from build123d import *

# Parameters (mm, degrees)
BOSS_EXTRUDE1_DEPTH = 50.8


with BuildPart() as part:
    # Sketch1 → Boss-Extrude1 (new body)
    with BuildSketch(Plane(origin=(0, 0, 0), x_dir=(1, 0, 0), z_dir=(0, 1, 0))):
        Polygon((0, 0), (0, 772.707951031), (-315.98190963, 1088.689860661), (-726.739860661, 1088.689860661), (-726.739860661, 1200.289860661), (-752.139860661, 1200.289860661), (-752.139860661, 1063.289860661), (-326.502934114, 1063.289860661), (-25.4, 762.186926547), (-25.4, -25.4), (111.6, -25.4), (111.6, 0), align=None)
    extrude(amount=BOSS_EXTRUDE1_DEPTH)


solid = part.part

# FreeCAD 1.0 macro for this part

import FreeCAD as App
import Part
import Sketcher
from FreeCAD import Vector
Q = App.Units.Quantity

doc = App.newDocument("Part")
body = doc.addObject("PartDesign::Body", "Body")

# Sketch on XZ plane
sketch1 = body.newObject("Sketcher::SketchObject", "Sketch")
sketch1.AttachmentSupport = (doc.getObject("XZ_Plane"), [""])
sketch1.MapMode = "FlatFace"
sketch1.addGeometry(Part.LineSegment(Vector(0, 0, 0), Vector(0, -773, 0)), False)
sketch1.addGeometry(Part.LineSegment(Vector(0, -773, 0), Vector(-316, -1089, 0)), False)
sketch1.addGeometry(Part.LineSegment(Vector(-316, -1089, 0), Vector(-727, -1089, 0)), False)
sketch1.addGeometry(Part.LineSegment(Vector(-727, -1089, 0), Vector(-727, -1200, 0)), False)
sketch1.addGeometry(Part.LineSegment(Vector(-727, -1200, 0), Vector(-752, -1200, 0)), False)
sketch1.addGeometry(Part.LineSegment(Vector(-752, -1200, 0), Vector(-752, -1063, 0)), False)
sketch1.addGeometry(Part.LineSegment(Vector(-752, -1063, 0), Vector(-327, -1063, 0)), False)
sketch1.addGeometry(Part.LineSegment(Vector(-327, -1063, 0), Vector(-25, -762, 0)), False)
sketch1.addGeometry(Part.LineSegment(Vector(-25, -762, 0), Vector(-25, 25, 0)), False)
sketch1.addGeometry(Part.LineSegment(Vector(-25, 25, 0), Vector(112, 25, 0)), False)
sketch1.addGeometry(Part.LineSegment(Vector(112, 25, 0), Vector(112, 0, 0)), False)
sketch1.addGeometry(Part.LineSegment(Vector(112, 0, 0), Vector(0, 0, 0)), False)
sketch1.addConstraint(Sketcher.Constraint("Coincident", 0, 2, 1, 1))
sketch1.addConstraint(Sketcher.Constraint("Coincident", 1, 2, 2, 1))
sketch1.addConstraint(Sketcher.Constraint("Coincident", 2, 2, 3, 1))
sketch1.addConstraint(Sketcher.Constraint("Coincident", 3, 2, 4, 1))
sketch1.addConstraint(Sketcher.Constraint("Coincident", 4, 2, 5, 1))
sketch1.addConstraint(Sketcher.Constraint("Coincident", 5, 2, 6, 1))
sketch1.addConstraint(Sketcher.Constraint("Coincident", 6, 2, 7, 1))
sketch1.addConstraint(Sketcher.Constraint("Coincident", 7, 2, 8, 1))
sketch1.addConstraint(Sketcher.Constraint("Coincident", 8, 2, 9, 1))
sketch1.addConstraint(Sketcher.Constraint("Coincident", 9, 2, 10, 1))
sketch1.addConstraint(Sketcher.Constraint("Coincident", 10, 2, 11, 1))
sketch1.addConstraint(Sketcher.Constraint("Coincident", 11, 2, 0, 1))
sketch1.addConstraint(Sketcher.Constraint("Vertical", 0))
sketch1.addConstraint(Sketcher.Constraint("Horizontal", 2))
sketch1.addConstraint(Sketcher.Constraint("Vertical", 3))
sketch1.addConstraint(Sketcher.Constraint("Horizontal", 4))
sketch1.addConstraint(Sketcher.Constraint("Vertical", 5))
sketch1.addConstraint(Sketcher.Constraint("Horizontal", 6))
sketch1.addConstraint(Sketcher.Constraint("Vertical", 8))
sketch1.addConstraint(Sketcher.Constraint("Horizontal", 9))
sketch1.addConstraint(Sketcher.Constraint("Vertical", 10))
sketch1.addConstraint(Sketcher.Constraint("Horizontal", 11))
sketch1.addConstraint(Sketcher.Constraint("Coincident", 11, 2, -1, 1))
sketch1.addConstraint(Sketcher.Constraint("Parallel", 1, 7))
sketch1.addConstraint(Sketcher.Constraint("Equal", 11, 3))
sketch1.addConstraint(Sketcher.Constraint("Equal", 9, 5))
sketch1.addConstraint(Sketcher.Constraint("Equal", 4, 10))
sketch1.addConstraint(Sketcher.Constraint("DistanceX", 9, 1, 9, 2, Q("137 mm")))
sketch1.addConstraint(Sketcher.Constraint("Angle", 1, Q("-135 deg")))
sketch1.addConstraint(Sketcher.Constraint("DistanceX", 4, 2, 4, 1, Q("25.4 mm")))
sketch1.addConstraint(Sketcher.Constraint("DistanceX", 11, 2, 11, 1, Q("111.6 mm")))
sketch1.addConstraint(Sketcher.Constraint("DistanceX", 2, 2, 2, 1, Q("410.757951 mm")))
sketch1.addConstraint(Sketcher.Constraint("DistanceY", 0, 2, 0, 1, Q("772.707951 mm")))
sketch1.addConstraint(Sketcher.Constraint("DistanceX", 6, 1, 6, 2, Q("425.636927 mm")))
sketch1.addConstraint(Sketcher.Constraint("DistanceX", 1, 2, -1, 1, Q("315.98191 mm")))
pad1 = body.newObject("PartDesign::Pad", "Pad")
pad1.Profile = sketch1
pad1.Length = 50.8
pad1.Reversed = True

doc.recompute()
